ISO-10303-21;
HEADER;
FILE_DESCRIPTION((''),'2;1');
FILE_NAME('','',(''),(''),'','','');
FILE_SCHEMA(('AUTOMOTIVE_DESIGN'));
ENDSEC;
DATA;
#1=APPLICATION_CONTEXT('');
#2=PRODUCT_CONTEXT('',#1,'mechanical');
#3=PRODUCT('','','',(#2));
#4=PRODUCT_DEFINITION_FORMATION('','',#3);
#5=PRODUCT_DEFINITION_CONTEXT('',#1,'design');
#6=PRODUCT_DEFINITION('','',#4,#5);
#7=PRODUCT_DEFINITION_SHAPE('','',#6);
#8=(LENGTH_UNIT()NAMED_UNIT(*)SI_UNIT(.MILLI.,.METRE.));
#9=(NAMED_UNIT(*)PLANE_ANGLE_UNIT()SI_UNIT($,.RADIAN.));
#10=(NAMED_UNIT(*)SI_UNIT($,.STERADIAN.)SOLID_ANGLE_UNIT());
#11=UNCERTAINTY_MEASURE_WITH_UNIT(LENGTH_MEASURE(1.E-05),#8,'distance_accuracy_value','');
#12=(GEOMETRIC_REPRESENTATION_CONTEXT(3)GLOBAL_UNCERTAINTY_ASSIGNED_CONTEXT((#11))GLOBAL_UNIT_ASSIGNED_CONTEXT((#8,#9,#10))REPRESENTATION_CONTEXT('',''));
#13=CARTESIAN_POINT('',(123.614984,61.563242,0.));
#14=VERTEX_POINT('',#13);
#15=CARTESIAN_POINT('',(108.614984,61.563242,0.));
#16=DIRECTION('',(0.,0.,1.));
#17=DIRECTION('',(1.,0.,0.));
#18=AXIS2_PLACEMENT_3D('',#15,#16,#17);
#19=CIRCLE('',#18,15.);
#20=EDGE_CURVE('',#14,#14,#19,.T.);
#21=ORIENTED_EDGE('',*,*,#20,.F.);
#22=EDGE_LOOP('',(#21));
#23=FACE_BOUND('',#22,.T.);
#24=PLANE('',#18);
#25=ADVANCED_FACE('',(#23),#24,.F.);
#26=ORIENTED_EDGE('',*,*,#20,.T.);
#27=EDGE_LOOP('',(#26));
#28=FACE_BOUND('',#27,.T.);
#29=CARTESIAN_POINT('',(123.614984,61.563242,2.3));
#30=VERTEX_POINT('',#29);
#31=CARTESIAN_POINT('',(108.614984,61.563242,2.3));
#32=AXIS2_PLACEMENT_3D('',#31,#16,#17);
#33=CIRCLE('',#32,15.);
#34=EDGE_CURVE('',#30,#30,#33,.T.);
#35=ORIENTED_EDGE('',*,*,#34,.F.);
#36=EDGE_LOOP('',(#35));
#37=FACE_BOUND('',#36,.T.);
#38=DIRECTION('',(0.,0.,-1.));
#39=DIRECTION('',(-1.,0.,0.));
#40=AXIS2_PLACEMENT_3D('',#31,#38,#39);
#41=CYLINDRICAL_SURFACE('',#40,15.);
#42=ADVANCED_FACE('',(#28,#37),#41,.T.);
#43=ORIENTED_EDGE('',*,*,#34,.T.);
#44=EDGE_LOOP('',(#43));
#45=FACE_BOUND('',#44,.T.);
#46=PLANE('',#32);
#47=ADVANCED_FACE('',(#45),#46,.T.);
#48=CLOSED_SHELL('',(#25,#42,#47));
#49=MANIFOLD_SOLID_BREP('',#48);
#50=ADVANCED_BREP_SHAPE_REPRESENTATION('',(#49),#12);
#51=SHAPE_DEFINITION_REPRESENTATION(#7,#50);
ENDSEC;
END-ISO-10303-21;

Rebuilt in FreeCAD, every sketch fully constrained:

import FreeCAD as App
import Part
import Sketcher

doc = App.newDocument("Part")
body = doc.addObject("PartDesign::Body", "Body")

# Sketch on XY plane
sketch1 = body.newObject("Sketcher::SketchObject", "Sketch")
sketch1.AttachmentSupport = (doc.getObject("XY_Plane"), [""])
sketch1.MapMode = "FlatFace"
sketch1.addGeometry(Part.Circle(App.Vector(109, 62, 0), App.Vector(0, 0, 1), 15), False)
sketch1.addConstraint([
    Sketcher.Constraint("Diameter", 0, 30.0),
    Sketcher.Constraint("DistanceY", -1, 1, 0, 3, 61.563242),
    Sketcher.Constraint("DistanceX", -1, 1, 0, 3, 108.614984),
])
pad1 = body.newObject("PartDesign::Pad", "Pad")
pad1.Profile = sketch1
pad1.Length = 2.3

doc.recompute()
